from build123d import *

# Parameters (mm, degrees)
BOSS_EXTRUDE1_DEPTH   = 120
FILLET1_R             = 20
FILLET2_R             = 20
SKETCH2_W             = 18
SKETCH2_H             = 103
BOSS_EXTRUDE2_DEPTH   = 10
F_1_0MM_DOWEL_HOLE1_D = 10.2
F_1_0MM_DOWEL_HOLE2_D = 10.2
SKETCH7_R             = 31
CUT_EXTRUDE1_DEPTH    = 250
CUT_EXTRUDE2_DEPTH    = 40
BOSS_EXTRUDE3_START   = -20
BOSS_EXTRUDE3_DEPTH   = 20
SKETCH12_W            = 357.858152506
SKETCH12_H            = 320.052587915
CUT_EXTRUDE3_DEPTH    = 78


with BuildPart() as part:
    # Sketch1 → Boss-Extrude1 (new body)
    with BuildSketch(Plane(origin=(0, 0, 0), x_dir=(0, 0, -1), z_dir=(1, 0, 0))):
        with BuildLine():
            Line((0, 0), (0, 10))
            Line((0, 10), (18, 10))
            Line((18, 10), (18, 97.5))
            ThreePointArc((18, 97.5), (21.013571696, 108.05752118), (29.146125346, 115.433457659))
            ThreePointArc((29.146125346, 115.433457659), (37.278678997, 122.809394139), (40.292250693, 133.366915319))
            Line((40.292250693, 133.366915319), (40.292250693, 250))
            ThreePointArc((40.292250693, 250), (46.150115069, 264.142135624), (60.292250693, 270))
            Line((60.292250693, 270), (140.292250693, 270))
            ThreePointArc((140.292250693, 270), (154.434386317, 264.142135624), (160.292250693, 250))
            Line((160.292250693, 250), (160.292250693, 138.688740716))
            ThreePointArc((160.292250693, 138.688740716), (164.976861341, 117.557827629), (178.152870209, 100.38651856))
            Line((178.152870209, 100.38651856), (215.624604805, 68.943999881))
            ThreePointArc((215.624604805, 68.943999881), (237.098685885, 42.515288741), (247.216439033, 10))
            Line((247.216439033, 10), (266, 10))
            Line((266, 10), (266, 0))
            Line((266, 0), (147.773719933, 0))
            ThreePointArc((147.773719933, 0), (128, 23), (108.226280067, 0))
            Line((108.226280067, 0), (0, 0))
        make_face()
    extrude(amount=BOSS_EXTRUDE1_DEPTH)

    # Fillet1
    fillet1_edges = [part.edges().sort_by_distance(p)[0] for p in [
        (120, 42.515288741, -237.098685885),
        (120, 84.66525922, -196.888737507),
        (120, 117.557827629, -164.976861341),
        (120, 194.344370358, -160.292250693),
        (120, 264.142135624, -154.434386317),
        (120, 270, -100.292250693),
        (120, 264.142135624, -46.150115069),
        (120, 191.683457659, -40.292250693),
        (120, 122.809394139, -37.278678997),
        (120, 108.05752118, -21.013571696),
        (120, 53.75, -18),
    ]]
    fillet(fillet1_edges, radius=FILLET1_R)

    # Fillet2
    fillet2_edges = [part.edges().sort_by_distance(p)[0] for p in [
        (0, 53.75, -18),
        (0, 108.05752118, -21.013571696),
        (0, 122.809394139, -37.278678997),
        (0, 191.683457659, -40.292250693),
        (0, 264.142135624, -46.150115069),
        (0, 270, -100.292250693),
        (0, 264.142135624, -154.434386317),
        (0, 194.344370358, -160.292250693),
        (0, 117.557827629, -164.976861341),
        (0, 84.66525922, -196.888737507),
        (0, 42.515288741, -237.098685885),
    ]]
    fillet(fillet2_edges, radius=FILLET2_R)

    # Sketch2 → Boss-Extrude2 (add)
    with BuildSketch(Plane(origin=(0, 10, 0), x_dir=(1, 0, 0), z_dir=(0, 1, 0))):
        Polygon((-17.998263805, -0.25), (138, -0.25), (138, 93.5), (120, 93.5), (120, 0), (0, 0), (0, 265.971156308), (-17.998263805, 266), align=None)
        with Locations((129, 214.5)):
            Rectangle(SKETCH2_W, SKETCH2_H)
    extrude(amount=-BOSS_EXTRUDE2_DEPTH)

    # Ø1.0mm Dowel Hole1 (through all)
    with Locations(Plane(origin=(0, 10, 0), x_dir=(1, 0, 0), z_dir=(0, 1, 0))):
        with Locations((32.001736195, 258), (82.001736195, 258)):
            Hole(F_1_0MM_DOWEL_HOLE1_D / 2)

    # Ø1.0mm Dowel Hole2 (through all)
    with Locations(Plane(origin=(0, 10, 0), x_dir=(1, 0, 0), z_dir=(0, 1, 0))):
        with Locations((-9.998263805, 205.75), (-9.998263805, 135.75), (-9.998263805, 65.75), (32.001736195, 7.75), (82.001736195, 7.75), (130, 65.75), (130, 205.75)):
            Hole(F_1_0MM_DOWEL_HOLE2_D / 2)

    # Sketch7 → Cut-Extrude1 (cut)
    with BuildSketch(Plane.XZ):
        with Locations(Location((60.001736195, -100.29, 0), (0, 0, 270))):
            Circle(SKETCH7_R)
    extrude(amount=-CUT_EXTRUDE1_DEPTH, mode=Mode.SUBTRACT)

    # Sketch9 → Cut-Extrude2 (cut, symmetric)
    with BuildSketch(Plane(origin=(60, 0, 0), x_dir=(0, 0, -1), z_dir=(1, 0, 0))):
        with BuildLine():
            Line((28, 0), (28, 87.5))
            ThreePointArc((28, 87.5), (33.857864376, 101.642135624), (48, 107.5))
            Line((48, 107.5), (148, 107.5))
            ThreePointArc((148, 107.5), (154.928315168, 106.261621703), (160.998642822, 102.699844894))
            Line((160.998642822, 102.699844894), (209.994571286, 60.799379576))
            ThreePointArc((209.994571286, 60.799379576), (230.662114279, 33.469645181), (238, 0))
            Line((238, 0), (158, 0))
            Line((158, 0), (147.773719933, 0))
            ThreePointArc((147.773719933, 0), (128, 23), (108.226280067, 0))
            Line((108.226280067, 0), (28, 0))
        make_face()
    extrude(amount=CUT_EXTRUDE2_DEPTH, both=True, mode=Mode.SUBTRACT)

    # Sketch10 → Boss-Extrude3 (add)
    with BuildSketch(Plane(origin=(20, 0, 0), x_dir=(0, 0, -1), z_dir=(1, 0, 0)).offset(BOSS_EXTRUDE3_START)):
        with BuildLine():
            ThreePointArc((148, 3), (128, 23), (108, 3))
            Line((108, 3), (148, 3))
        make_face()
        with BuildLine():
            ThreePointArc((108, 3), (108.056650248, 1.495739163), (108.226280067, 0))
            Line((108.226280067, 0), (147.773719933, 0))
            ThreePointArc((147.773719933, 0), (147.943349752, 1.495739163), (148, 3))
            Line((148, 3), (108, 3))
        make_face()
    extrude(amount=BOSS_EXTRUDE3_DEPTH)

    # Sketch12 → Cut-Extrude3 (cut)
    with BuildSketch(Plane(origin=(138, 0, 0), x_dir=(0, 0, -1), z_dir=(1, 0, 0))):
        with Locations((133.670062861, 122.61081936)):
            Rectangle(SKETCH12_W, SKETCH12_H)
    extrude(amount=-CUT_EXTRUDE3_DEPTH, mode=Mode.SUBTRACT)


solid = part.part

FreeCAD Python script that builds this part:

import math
import FreeCAD as App
import Part
import Sketcher

V = App.Vector
Q = App.Units.Quantity


def edges_at(feature, points):
    """Names of the edges that pass closest to the given points."""
    edges = feature.Shape.Edges
    near = lambda p: min(range(len(edges)), key=lambda i: edges[i].distToShape(Part.Vertex(*p))[0])
    return sorted({f"Edge{near(p) + 1}" for p in points})

doc = App.newDocument("Part")
body = doc.addObject("PartDesign::Body", "Body")

sketch1 = doc.addObject("Sketcher::SketchObject", "Sketch")
body.addObject(sketch1)
sketch1.AttachmentSupport = (doc.YZ_Plane, [""])
sketch1.MapMode = "FlatFace"
sketch1.addGeometry([
    Part.LineSegment(V(10, 0, 0), V(0, 0, 0)),
    Part.LineSegment(V(0, 0, 0), V(0, -108.22628, 0)),
    Part.ArcOfCircle(Part.Circle(V(3, -128, 0), V(0, 0, 1), 20), math.radians(-98.626927), math.radians(98.626927)),
    Part.LineSegment(V(0, -147.77372, 0), V(0, -266, 0)),
    Part.LineSegment(V(0, -266, 0), V(10, -266, 0)),
    Part.LineSegment(V(10, -266, 0), V(10, -247.216439, 0)),
    Part.ArcOfCircle(Part.Circle(V(0, -157.77372, 0), V(0, 0, 1), 90), math.radians(-83.62063), math.radians(-40)),
    Part.LineSegment(V(68.944, -215.624605, 0), V(100.386519, -178.15287, 0)),
    Part.ArcOfCircle(Part.Circle(V(138.688741, -210.292251, 0), V(0, 0, 1), 50), math.radians(90), math.radians(140)),
    Part.LineSegment(V(138.688741, -160.292251, 0), V(250, -160.292251, 0)),
    Part.ArcOfCircle(Part.Circle(V(250, -140.292251, 0), V(0, 0, 1), 20), math.radians(-90), math.radians(0)),
    Part.LineSegment(V(270, -140.292251, 0), V(270, -60.292251, 0)),
    Part.ArcOfCircle(Part.Circle(V(250, -60.292251, 0), V(0, 0, 1), 20), math.radians(0), math.radians(90)),
    Part.LineSegment(V(250, -40.292251, 0), V(133.366915, -40.292251, 0)),
    Part.ArcOfCircle(Part.Circle(V(133.366915, -20.292251, 0), V(0, 0, 1), 20), math.radians(-153.724121), math.radians(-90)),
    Part.ArcOfCircle(Part.Circle(V(97.5, -38, 0), V(0, 0, 1), 20), math.radians(26.275879), math.radians(90)),
    Part.LineSegment(V(97.5, -18, 0), V(10, -18, 0)),
    Part.LineSegment(V(10, -18, 0), V(10, 0, 0)),
], False)
sketch1.addConstraint([
    Sketcher.Constraint("Coincident", 0, 2, 1, 1),
    Sketcher.Constraint("Coincident", 1, 2, 2, 2),
    Sketcher.Constraint("Coincident", 2, 1, 3, 1),
    Sketcher.Constraint("Coincident", 3, 2, 4, 1),
    Sketcher.Constraint("Coincident", 4, 2, 5, 1),
    Sketcher.Constraint("Coincident", 5, 2, 6, 1),
    Sketcher.Constraint("Tangent", 6, 2, 7, 1),
    Sketcher.Constraint("Tangent", 7, 2, 8, 2),
    Sketcher.Constraint("Tangent", 8, 1, 9, 1),
    Sketcher.Constraint("Tangent", 9, 2, 10, 1),
    Sketcher.Constraint("Tangent", 10, 2, 11, 1),
    Sketcher.Constraint("Tangent", 11, 2, 12, 1),
    Sketcher.Constraint("Tangent", 12, 2, 13, 1),
    Sketcher.Constraint("Tangent", 13, 2, 14, 2),
    Sketcher.Constraint("Tangent", 14, 1, 15, 1),
    Sketcher.Constraint("Tangent", 15, 2, 16, 1),
    Sketcher.Constraint("Coincident", 16, 2, 17, 1),
    Sketcher.Constraint("Coincident", 17, 2, 0, 1),
    Sketcher.Constraint("Horizontal", 0),
    Sketcher.Constraint("Vertical", 1),
    Sketcher.Constraint("Vertical", 3),
    Sketcher.Constraint("Horizontal", 4),
    Sketcher.Constraint("Vertical", 5),
    Sketcher.Constraint("Horizontal", 9),
    Sketcher.Constraint("Vertical", 11),
    Sketcher.Constraint("Horizontal", 13),
    Sketcher.Constraint("Horizontal", 16),
    Sketcher.Constraint("Vertical", 17),
    Sketcher.Constraint("Coincident", 0, 2, -1, 1),
    Sketcher.Constraint("Equal", 2, 10),
    Sketcher.Constraint("Equal", 10, 12),
    Sketcher.Constraint("Equal", 12, 14),
    Sketcher.Constraint("Equal", 14, 15),
    Sketcher.Constraint("PointOnObject", 6, 3, -2),
    Sketcher.Constraint("PointOnObject", 2, 1, -2),
    Sketcher.Constraint("Vertical", 5, 2, 16, 2),
    Sketcher.Constraint("Radius", 2, 20.0),
    Sketcher.Constraint("Radius", 6, 90.0),
    Sketcher.Constraint("Radius", 8, 50.0),
    Sketcher.Constraint("DistanceX", 0, 2, 0, 1, 10.0),
    Sketcher.Constraint("DistanceY", 11, 1, 11, 2, 80.0),
    Sketcher.Constraint("DistanceY", 17, 1, 17, 2, 18.0),
    Sketcher.Constraint("Angle", 7, Q("50 deg")),
    Sketcher.Constraint("DistanceX", 16, 2, 16, 1, 87.5),
    Sketcher.Constraint("DistanceX", -1, 1, 2, 3, 3.0),
    Sketcher.Constraint("DistanceY", 2, 3, -1, 1, 128.0),
    Sketcher.Constraint("DistanceX", -1, 1, 10, 3, 250.0),
    Sketcher.Constraint("DistanceY", 3, 2, -1, 1, 266.0),
    Sketcher.Constraint("DistanceY", 6, 3, 2, 1, 10.0),
    Sketcher.Constraint("DistanceX", 9, 1, 9, 2, 111.311259),
])
pad1 = doc.addObject("PartDesign::Pad", "Pad")
body.addObject(pad1)
pad1.Profile = sketch1
pad1.Length = 120
doc.recompute()

fillet = doc.addObject("PartDesign::Fillet", "Fillet")
body.addObject(fillet)
fillet.Base = (pad1, edges_at(pad1, [
    (120, 42.515, -237.099),
    (120, 84.665, -196.889),
    (120, 117.558, -164.977),
    (120, 194.344, -160.292),
    (120, 264.142, -154.434),
    (120, 270, -100.292),
    (120, 264.142, -46.15),
    (120, 191.683, -40.292),
    (120, 122.809, -37.279),
    (120, 108.058, -21.014),
    (120, 53.75, -18),
]))
fillet.Radius = 20
doc.recompute()

fillet2 = doc.addObject("PartDesign::Fillet", "Fillet001")
body.addObject(fillet2)
fillet2.Base = (fillet, edges_at(fillet, [
    (0, 53.75, -18),
    (0, 108.058, -21.014),
    (0, 122.809, -37.279),
    (0, 191.683, -40.292),
    (0, 264.142, -46.15),
    (0, 270, -100.292),
    (0, 264.142, -154.434),
    (0, 194.344, -160.292),
    (0, 117.558, -164.977),
    (0, 84.665, -196.889),
    (0, 42.515, -237.099),
]))
fillet2.Radius = 20

sketch2 = doc.addObject("Sketcher::SketchObject", "Sketch001")
body.addObject(sketch2)
sketch2.AttachmentSupport = (doc.XZ_Plane, [""])
sketch2.MapMode = "FlatFace"
sketch2.AttachmentOffset = App.Placement(V(0, 0, -10), App.Rotation())
sketch2.addGeometry([
    Part.LineSegment(V(-17.998264, 0.25, 0), V(138, 0.25, 0)),
    Part.LineSegment(V(138, 0.25, 0), V(138, -93.5, 0)),
    Part.LineSegment(V(138, -93.5, 0), V(120, -93.5, 0)),
    Part.LineSegment(V(120, -93.5, 0), V(120, 0, 0)),
    Part.LineSegment(V(120, 0, 0), V(0, 0, 0)),
    Part.LineSegment(V(0, 0, 0), V(0, -265.971156, 0)),
    Part.LineSegment(V(0, -265.971156, 0), V(-17.998264, -266, 0)),
    Part.LineSegment(V(-17.998264, -266, 0), V(-17.998264, 0.25, 0)),
    Part.LineSegment(V(120, -266, 0), V(120, -163, 0)),
    Part.LineSegment(V(120, -163, 0), V(138, -163, 0)),
    Part.LineSegment(V(138, -163, 0), V(138, -266, 0)),
    Part.LineSegment(V(138, -266, 0), V(120, -266, 0)),
], False)
sketch2.addConstraint([
    Sketcher.Constraint("Coincident", 0, 2, 1, 1),
    Sketcher.Constraint("Coincident", 1, 2, 2, 1),
    Sketcher.Constraint("Coincident", 2, 2, 3, 1),
    Sketcher.Constraint("Coincident", 3, 2, 4, 1),
    Sketcher.Constraint("Coincident", 4, 2, 5, 1),
    Sketcher.Constraint("Coincident", 5, 2, 6, 1),
    Sketcher.Constraint("Coincident", 6, 2, 7, 1),
    Sketcher.Constraint("Coincident", 7, 2, 0, 1),
    Sketcher.Constraint("Coincident", 8, 2, 9, 1),
    Sketcher.Constraint("Coincident", 9, 2, 10, 1),
    Sketcher.Constraint("Coincident", 10, 2, 11, 1),
    Sketcher.Constraint("Coincident", 11, 2, 8, 1),
    Sketcher.Constraint("Horizontal", 0),
    Sketcher.Constraint("Vertical", 1),
    Sketcher.Constraint("Horizontal", 2),
    Sketcher.Constraint("Vertical", 3),
    Sketcher.Constraint("Horizontal", 4),
    Sketcher.Constraint("Vertical", 5),
    Sketcher.Constraint("Vertical", 7),
    Sketcher.Constraint("Vertical", 8),
    Sketcher.Constraint("Horizontal", 9),
    Sketcher.Constraint("Vertical", 10),
    Sketcher.Constraint("Horizontal", 11),
    Sketcher.Constraint("Coincident", 4, 2, -1, 1),
    Sketcher.Constraint("Horizontal", 6, 2, 10, 2),
    Sketcher.Constraint("Vertical", 3, 2, 8, 2),
    Sketcher.Constraint("Vertical", 1, 2, 9, 2),
    Sketcher.Constraint("DistanceX", 2, 2, 2, 1, 18.0),
    Sketcher.Constraint("DistanceX", 4, 2, 4, 1, 120.0),
    Sketcher.Constraint("DistanceY", 8, 1, 8, 2, 103.0),
    Sketcher.Constraint("DistanceY", 3, 1, 3, 2, 93.5),
    Sketcher.Constraint("DistanceY", 6, 2, -1, 1, 266.0),
    Sketcher.Constraint("DistanceY", 1, 2, 1, 1, 93.75),
    Sketcher.Constraint("DistanceX", 0, 1, 0, 2, 155.998264),
    Sketcher.Constraint("DistanceY", 5, 2, 5, 1, 265.971156),
])
pad2 = doc.addObject("PartDesign::Pad", "Pad001")
body.addObject(pad2)
pad2.Profile = sketch2
pad2.Length = 10

sketch3 = doc.addObject("Sketcher::SketchObject", "Sketch002")
body.addObject(sketch3)
sketch3.AttachmentSupport = (doc.XZ_Plane, [""])
sketch3.MapMode = "FlatFace"
sketch3.AttachmentOffset = App.Placement(V(0, 0, -10), App.Rotation())
sketch3.addGeometry([
    Part.Circle(V(32.001736, -258, 0), V(0, 0, 1), 5.1),
    Part.Circle(V(82.001736, -258, 0), V(0, 0, 1), 5.1),
], False)
sketch3.addConstraint([
    Sketcher.Constraint("Equal", 0, 1),
    Sketcher.Constraint("Horizontal", 0, 3, 1, 3),
    Sketcher.Constraint("Diameter", 0, 10.2),
    Sketcher.Constraint("DistanceY", 0, 3, -1, 1, 258.0),
    Sketcher.Constraint("DistanceX", 0, 3, 1, 3, 50.0),
    Sketcher.Constraint("DistanceX", -1, 1, 0, 3, 32.001736),
])
doc.recompute()
hole = doc.addObject("PartDesign::Hole", "Hole")
body.addObject(hole)
hole.Profile = sketch3
hole.ThreadType = "None"
hole.Diameter = 10.2
hole.DepthType = "ThroughAll"
hole.Reversed = True

sketch4 = doc.addObject("Sketcher::SketchObject", "Sketch003")
body.addObject(sketch4)
sketch4.AttachmentSupport = (doc.XZ_Plane, [""])
sketch4.MapMode = "FlatFace"
sketch4.AttachmentOffset = App.Placement(V(0, 0, -10), App.Rotation())
sketch4.addGeometry([
    Part.Circle(V(-9.998264, -205.75, 0), V(0, 0, 1), 5.1),
    Part.Circle(V(-9.998264, -135.75, 0), V(0, 0, 1), 5.1),
    Part.Circle(V(-9.998264, -65.75, 0), V(0, 0, 1), 5.1),
    Part.Circle(V(32.001736, -7.75, 0), V(0, 0, 1), 5.1),
    Part.Circle(V(82.001736, -7.75, 0), V(0, 0, 1), 5.1),
    Part.Circle(V(130, -65.75, 0), V(0, 0, 1), 5.1),
    Part.Circle(V(130, -205.75, 0), V(0, 0, 1), 5.1),
], False)
sketch4.addConstraint([
    Sketcher.Constraint("Equal", 0, 1),
    Sketcher.Constraint("Equal", 1, 2),
    Sketcher.Constraint("Equal", 2, 3),
    Sketcher.Constraint("Equal", 3, 4),
    Sketcher.Constraint("Equal", 4, 5),
    Sketcher.Constraint("Equal", 5, 6),
    Sketcher.Constraint("Horizontal", 3, 3, 4, 3),
    Sketcher.Constraint("Horizontal", 2, 3, 5, 3),
    Sketcher.Constraint("Horizontal", 0, 3, 6, 3),
    Sketcher.Constraint("Vertical", 0, 3, 1, 3),
    Sketcher.Constraint("Vertical", 1, 3, 2, 3),
    Sketcher.Constraint("Vertical", 5, 3, 6, 3),
    Sketcher.Constraint("Diameter", 0, 10.2),
    Sketcher.Constraint("DistanceX", -1, 1, 5, 3, 130.0),
    Sketcher.Constraint("DistanceY", 0, 3, 1, 3, 70.0),
    Sketcher.Constraint("DistanceY", 1, 3, 2, 3, 70.0),
    Sketcher.Constraint("DistanceX", 2, 3, 3, 3, 42.0),
    Sketcher.Constraint("DistanceY", 2, 3, 3, 3, 58.0),
    Sketcher.Constraint("DistanceX", 3, 3, 4, 3, 50.0),
    Sketcher.Constraint("DistanceY", 0, 3, -1, 1, 205.75),
    Sketcher.Constraint("DistanceX", 0, 3, -1, 1, 9.998264),
])
doc.recompute()
hole2 = doc.addObject("PartDesign::Hole", "Hole001")
body.addObject(hole2)
hole2.Profile = sketch4
hole2.ThreadType = "None"
hole2.Diameter = 10.2
hole2.DepthType = "ThroughAll"
hole2.Reversed = True

sketch5 = doc.addObject("Sketcher::SketchObject", "Sketch004")
body.addObject(sketch5)
sketch5.AttachmentSupport = (doc.XZ_Plane, [""])
sketch5.MapMode = "FlatFace"
sketch5.addGeometry(Part.Circle(V(60.001736, -100.29, 0), V(0, 0, 1), 31), False)
sketch5.addConstraint([
    Sketcher.Constraint("Diameter", 0, 62.0),
    Sketcher.Constraint("DistanceY", 0, 3, -1, 1, 100.29),
    Sketcher.Constraint("DistanceX", -1, 1, 0, 3, 60.001736),
])
pocket1 = doc.addObject("PartDesign::Pocket", "Pocket")
body.addObject(pocket1)
pocket1.Profile = sketch5
pocket1.Length = 250

sketch6 = doc.addObject("Sketcher::SketchObject", "Sketch005")
body.addObject(sketch6)
sketch6.AttachmentSupport = (doc.YZ_Plane, [""])
sketch6.MapMode = "FlatFace"
sketch6.AttachmentOffset = App.Placement(V(0, 0, 60), App.Rotation())
sketch6.addGeometry([
    Part.LineSegment(V(87.5, -28, 0), V(0, -28, 0)),
    Part.LineSegment(V(0, -28, 0), V(0, -108.22628, 0)),
    Part.ArcOfCircle(Part.Circle(V(3, -128, 0), V(0, 0, 1), 20), math.radians(-98.626927), math.radians(98.626927)),
    Part.LineSegment(V(0, -147.77372, 0), V(0, -238, 0)),
    Part.ArcOfCircle(Part.Circle(V(0, -158, 0), V(0, 0, 1), 80), math.radians(-90), math.radians(-40.536486)),
    Part.LineSegment(V(60.79938, -209.994571, 0), V(102.699845, -160.998643, 0)),
    Part.ArcOfCircle(Part.Circle(V(87.5, -148, 0), V(0, 0, 1), 20), math.radians(-40.536486), math.radians(0)),
    Part.LineSegment(V(107.5, -148, 0), V(107.5, -48, 0)),
    Part.ArcOfCircle(Part.Circle(V(87.5, -48, 0), V(0, 0, 1), 20), math.radians(0), math.radians(90)),
], False)
sketch6.addConstraint([
    Sketcher.Constraint("Coincident", 0, 2, 1, 1),
    Sketcher.Constraint("Coincident", 1, 2, 2, 2),
    Sketcher.Constraint("Coincident", 2, 1, 3, 1),
    Sketcher.Constraint("Coincident", 3, 2, 4, 1),
    Sketcher.Constraint("Tangent", 4, 2, 5, 1),
    Sketcher.Constraint("Tangent", 5, 2, 6, 1),
    Sketcher.Constraint("Tangent", 6, 2, 7, 1),
    Sketcher.Constraint("Tangent", 7, 2, 8, 1),
    Sketcher.Constraint("Tangent", 8, 2, 0, 1),
    Sketcher.Constraint("Horizontal", 0),
    Sketcher.Constraint("Vertical", 1),
    Sketcher.Constraint("Vertical", 3),
    Sketcher.Constraint("Vertical", 7),
    Sketcher.Constraint("Equal", 2, 6),
    Sketcher.Constraint("Equal", 6, 8),
    Sketcher.Constraint("PointOnObject", 4, 3, -2),
    Sketcher.Constraint("PointOnObject", 0, 2, -2),
    Sketcher.Constraint("PointOnObject", 2, 1, -2),
    Sketcher.Constraint("Radius", 2, 20.0),
    Sketcher.Constraint("Radius", 4, 80.0),
    Sketcher.Constraint("DistanceY", 7, 1, 7, 2, 100.0),
    Sketcher.Constraint("DistanceX", 0, 2, 0, 1, 87.5),
    Sketcher.Constraint("DistanceX", -1, 1, 2, 3, 3.0),
    Sketcher.Constraint("DistanceY", 2, 3, -1, 1, 128.0),
    Sketcher.Constraint("DistanceY", 4, 3, -1, 1, 158.0),
    Sketcher.Constraint("DistanceY", 6, 3, -1, 1, 148.0),
])
pocket2 = doc.addObject("PartDesign::Pocket", "Pocket001")
body.addObject(pocket2)
pocket2.Profile = sketch6
pocket2.Length = 80
pocket2.Midplane = True

sketch7 = doc.addObject("Sketcher::SketchObject", "Sketch006")
body.addObject(sketch7)
sketch7.AttachmentSupport = (doc.YZ_Plane, [""])
sketch7.MapMode = "FlatFace"
sketch7.addGeometry([
    Part.ArcOfCircle(Part.Circle(V(3, -128, 0), V(0, 0, 1), 20), math.radians(-90), math.radians(90)),
    Part.ArcOfCircle(Part.Circle(V(3, -128, 0), V(0, 0, 1), 20), math.radians(90), math.radians(98.626927)),
    Part.LineSegment(V(0, -108.22628, 0), V(0, -147.77372, 0)),
    Part.ArcOfCircle(Part.Circle(V(3, -128, 0), V(0, 0, 1), 20), math.radians(-98.626927), math.radians(-90)),
], False)
sketch7.addConstraint([
    Sketcher.Constraint("Tangent", 0, 2, 1, 1),
    Sketcher.Constraint("Coincident", 1, 2, 2, 1),
    Sketcher.Constraint("Coincident", 2, 2, 3, 1),
    Sketcher.Constraint("Tangent", 3, 2, 0, 1),
    Sketcher.Constraint("Vertical", 2),
    Sketcher.Constraint("Equal", 0, 1),
    Sketcher.Constraint("Equal", 1, 3),
    Sketcher.Constraint("PointOnObject", 1, 2, -2),
    Sketcher.Constraint("Vertical", 3, 3, 0, 2),
    Sketcher.Constraint("Vertical", 0, 2, 3, 2),
    Sketcher.Constraint("Radius", 0, 20.0),
    Sketcher.Constraint("DistanceX", -1, 1, 0, 3, 3.0),
    Sketcher.Constraint("DistanceY", 0, 3, -1, 1, 128.0),
])
pad3 = doc.addObject("PartDesign::Pad", "Pad002")
body.addObject(pad3)
pad3.Profile = sketch7
pad3.Length = 20

sketch8 = doc.addObject("Sketcher::SketchObject", "Sketch007")
body.addObject(sketch8)
sketch8.AttachmentSupport = (doc.YZ_Plane, [""])
sketch8.MapMode = "FlatFace"
sketch8.AttachmentOffset = App.Placement(V(0, 0, 138), App.Rotation())
sketch8.addGeometry([
    Part.LineSegment(V(282.637113, 45.259013, 0), V(-37.415475, 45.259013, 0)),
    Part.LineSegment(V(-37.415475, 45.259013, 0), V(-37.415475, -312.599139, 0)),
    Part.LineSegment(V(-37.415475, -312.599139, 0), V(282.637113, -312.599139, 0)),
    Part.LineSegment(V(282.637113, -312.599139, 0), V(282.637113, 45.259013, 0)),
], False)
sketch8.addConstraint([
    Sketcher.Constraint("Coincident", 0, 2, 1, 1),
    Sketcher.Constraint("Coincident", 1, 2, 2, 1),
    Sketcher.Constraint("Coincident", 2, 2, 3, 1),
    Sketcher.Constraint("Coincident", 3, 2, 0, 1),
    Sketcher.Constraint("Horizontal", 0),
    Sketcher.Constraint("Vertical", 1),
    Sketcher.Constraint("Horizontal", 2),
    Sketcher.Constraint("Vertical", 3),
    Sketcher.Constraint("DistanceX", 0, 2, 0, 1, 320.052588),
    Sketcher.Constraint("DistanceY", 1, 2, 1, 1, 357.858153),
    Sketcher.Constraint("DistanceY", 1, 2, -1, 1, 312.599139),
    Sketcher.Constraint("DistanceX", 0, 2, -1, 1, 37.415475),
])
pocket3 = doc.addObject("PartDesign::Pocket", "Pocket002")
body.addObject(pocket3)
pocket3.Profile = sketch8
pocket3.Length = 78

doc.recompute()
